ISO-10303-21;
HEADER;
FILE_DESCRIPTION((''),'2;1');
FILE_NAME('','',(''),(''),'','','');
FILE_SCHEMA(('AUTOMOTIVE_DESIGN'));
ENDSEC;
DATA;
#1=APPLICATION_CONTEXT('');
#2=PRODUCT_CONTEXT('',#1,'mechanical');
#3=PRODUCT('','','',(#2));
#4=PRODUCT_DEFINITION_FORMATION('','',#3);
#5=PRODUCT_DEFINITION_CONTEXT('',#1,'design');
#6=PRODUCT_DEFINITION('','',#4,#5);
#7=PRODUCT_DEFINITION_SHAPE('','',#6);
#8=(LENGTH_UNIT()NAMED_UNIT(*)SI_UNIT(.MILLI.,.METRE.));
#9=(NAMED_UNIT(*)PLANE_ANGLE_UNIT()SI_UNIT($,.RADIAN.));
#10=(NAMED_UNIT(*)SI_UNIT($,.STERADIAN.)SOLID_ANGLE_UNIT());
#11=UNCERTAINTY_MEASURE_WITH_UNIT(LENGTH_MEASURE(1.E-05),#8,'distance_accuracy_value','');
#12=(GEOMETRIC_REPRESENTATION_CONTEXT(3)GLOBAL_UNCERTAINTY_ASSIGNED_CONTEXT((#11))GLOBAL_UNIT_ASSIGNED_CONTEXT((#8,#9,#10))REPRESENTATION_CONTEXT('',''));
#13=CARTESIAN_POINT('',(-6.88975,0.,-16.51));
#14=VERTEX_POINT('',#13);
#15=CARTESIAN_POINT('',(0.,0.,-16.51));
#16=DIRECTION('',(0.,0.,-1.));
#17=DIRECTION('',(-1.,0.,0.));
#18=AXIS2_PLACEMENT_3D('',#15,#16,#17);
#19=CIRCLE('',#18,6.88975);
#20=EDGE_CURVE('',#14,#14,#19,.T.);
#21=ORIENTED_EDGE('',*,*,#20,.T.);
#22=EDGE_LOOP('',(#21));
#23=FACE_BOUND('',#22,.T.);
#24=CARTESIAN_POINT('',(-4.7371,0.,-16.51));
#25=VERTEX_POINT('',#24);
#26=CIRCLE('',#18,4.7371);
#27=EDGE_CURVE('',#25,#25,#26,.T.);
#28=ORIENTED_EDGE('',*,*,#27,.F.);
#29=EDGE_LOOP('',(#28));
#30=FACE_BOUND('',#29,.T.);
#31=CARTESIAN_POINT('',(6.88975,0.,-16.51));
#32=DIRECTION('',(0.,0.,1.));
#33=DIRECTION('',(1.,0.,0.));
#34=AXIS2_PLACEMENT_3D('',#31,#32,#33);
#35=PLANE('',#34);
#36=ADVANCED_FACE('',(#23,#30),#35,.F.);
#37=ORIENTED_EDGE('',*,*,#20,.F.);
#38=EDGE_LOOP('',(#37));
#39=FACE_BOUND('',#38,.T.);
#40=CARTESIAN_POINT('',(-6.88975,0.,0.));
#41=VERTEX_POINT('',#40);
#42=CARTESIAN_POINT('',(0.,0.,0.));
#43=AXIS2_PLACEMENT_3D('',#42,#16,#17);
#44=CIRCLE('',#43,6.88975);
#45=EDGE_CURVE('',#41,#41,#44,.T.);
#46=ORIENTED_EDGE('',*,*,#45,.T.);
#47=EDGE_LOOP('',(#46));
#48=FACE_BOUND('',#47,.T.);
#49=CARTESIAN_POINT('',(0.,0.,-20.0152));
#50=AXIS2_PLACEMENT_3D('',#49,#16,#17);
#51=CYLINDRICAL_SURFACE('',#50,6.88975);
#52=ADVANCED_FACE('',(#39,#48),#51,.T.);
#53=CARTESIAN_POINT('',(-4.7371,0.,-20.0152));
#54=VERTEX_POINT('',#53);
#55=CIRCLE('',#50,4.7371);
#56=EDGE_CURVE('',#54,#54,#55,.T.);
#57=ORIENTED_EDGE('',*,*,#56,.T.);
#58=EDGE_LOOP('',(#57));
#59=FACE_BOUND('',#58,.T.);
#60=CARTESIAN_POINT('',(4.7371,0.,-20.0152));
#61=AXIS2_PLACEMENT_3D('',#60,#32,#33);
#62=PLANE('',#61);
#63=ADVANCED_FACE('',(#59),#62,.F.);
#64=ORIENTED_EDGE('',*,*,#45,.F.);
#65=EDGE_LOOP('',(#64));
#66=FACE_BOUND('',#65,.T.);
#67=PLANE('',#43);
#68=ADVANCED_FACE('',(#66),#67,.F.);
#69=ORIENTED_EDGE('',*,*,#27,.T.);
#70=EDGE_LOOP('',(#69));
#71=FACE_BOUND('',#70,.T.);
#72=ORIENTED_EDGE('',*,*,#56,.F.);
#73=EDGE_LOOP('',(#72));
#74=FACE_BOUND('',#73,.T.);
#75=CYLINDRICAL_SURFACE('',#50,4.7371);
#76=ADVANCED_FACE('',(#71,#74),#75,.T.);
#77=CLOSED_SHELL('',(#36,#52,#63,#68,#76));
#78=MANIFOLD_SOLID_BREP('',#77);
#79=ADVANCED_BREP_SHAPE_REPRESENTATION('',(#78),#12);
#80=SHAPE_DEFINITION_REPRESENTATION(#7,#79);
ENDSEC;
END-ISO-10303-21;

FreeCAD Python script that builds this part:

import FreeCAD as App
import Part
import Sketcher
from FreeCAD import Vector
Q = App.Units.Quantity

doc = App.newDocument("Part")
body = doc.addObject("PartDesign::Body", "Body")

# Sketch on XZ plane
sketch1 = body.newObject("Sketcher::SketchObject", "Sketch")
sketch1.AttachmentSupport = (doc.getObject("XZ_Plane"), [""])
sketch1.MapMode = "FlatFace"
sketch1.addGeometry(Part.LineSegment(Vector(0, 0, 0), Vector(6.9, 0, 0)), False)
sketch1.addGeometry(Part.LineSegment(Vector(6.9, 0, 0), Vector(6.9, -16.5, 0)), False)
sketch1.addGeometry(Part.LineSegment(Vector(6.9, -16.5, 0), Vector(4.7, -16.5, 0)), False)
sketch1.addGeometry(Part.LineSegment(Vector(4.7, -16.5, 0), Vector(4.7, -20, 0)), False)
sketch1.addGeometry(Part.LineSegment(Vector(4.7, -20, 0), Vector(0, -20, 0)), False)
sketch1.addGeometry(Part.LineSegment(Vector(0, -20, 0), Vector(0, 0, 0)), False)
sketch1.addConstraint(Sketcher.Constraint("Coincident", 0, 2, 1, 1))
sketch1.addConstraint(Sketcher.Constraint("Coincident", 1, 2, 2, 1))
sketch1.addConstraint(Sketcher.Constraint("Coincident", 2, 2, 3, 1))
sketch1.addConstraint(Sketcher.Constraint("Coincident", 3, 2, 4, 1))
sketch1.addConstraint(Sketcher.Constraint("Coincident", 4, 2, 5, 1))
sketch1.addConstraint(Sketcher.Constraint("Coincident", 5, 2, 0, 1))
sketch1.addConstraint(Sketcher.Constraint("Horizontal", 0))
sketch1.addConstraint(Sketcher.Constraint("Vertical", 1))
sketch1.addConstraint(Sketcher.Constraint("Horizontal", 2))
sketch1.addConstraint(Sketcher.Constraint("Vertical", 3))
sketch1.addConstraint(Sketcher.Constraint("Horizontal", 4))
sketch1.addConstraint(Sketcher.Constraint("Vertical", 5))
sketch1.addConstraint(Sketcher.Constraint("Coincident", 5, 2, -1, 1))
sketch1.addConstraint(Sketcher.Constraint("DistanceY", 1, 2, 1, 1, Q("0.65 in")))
sketch1.addConstraint(Sketcher.Constraint("DistanceY", 3, 2, 3, 1, Q("0.138 in")))
sketch1.addConstraint(Sketcher.Constraint("DistanceX", 4, 2, 4, 1, Q("0.1865 in")))
sketch1.addConstraint(Sketcher.Constraint("DistanceX", 0, 1, 0, 2, 6.88975))
revolution = body.newObject("PartDesign::Revolution", "Revolution")
revolution.Profile = sketch1
revolution.ReferenceAxis = (sketch1, ["V_Axis"])
revolution.Angle = 360

doc.recompute()
